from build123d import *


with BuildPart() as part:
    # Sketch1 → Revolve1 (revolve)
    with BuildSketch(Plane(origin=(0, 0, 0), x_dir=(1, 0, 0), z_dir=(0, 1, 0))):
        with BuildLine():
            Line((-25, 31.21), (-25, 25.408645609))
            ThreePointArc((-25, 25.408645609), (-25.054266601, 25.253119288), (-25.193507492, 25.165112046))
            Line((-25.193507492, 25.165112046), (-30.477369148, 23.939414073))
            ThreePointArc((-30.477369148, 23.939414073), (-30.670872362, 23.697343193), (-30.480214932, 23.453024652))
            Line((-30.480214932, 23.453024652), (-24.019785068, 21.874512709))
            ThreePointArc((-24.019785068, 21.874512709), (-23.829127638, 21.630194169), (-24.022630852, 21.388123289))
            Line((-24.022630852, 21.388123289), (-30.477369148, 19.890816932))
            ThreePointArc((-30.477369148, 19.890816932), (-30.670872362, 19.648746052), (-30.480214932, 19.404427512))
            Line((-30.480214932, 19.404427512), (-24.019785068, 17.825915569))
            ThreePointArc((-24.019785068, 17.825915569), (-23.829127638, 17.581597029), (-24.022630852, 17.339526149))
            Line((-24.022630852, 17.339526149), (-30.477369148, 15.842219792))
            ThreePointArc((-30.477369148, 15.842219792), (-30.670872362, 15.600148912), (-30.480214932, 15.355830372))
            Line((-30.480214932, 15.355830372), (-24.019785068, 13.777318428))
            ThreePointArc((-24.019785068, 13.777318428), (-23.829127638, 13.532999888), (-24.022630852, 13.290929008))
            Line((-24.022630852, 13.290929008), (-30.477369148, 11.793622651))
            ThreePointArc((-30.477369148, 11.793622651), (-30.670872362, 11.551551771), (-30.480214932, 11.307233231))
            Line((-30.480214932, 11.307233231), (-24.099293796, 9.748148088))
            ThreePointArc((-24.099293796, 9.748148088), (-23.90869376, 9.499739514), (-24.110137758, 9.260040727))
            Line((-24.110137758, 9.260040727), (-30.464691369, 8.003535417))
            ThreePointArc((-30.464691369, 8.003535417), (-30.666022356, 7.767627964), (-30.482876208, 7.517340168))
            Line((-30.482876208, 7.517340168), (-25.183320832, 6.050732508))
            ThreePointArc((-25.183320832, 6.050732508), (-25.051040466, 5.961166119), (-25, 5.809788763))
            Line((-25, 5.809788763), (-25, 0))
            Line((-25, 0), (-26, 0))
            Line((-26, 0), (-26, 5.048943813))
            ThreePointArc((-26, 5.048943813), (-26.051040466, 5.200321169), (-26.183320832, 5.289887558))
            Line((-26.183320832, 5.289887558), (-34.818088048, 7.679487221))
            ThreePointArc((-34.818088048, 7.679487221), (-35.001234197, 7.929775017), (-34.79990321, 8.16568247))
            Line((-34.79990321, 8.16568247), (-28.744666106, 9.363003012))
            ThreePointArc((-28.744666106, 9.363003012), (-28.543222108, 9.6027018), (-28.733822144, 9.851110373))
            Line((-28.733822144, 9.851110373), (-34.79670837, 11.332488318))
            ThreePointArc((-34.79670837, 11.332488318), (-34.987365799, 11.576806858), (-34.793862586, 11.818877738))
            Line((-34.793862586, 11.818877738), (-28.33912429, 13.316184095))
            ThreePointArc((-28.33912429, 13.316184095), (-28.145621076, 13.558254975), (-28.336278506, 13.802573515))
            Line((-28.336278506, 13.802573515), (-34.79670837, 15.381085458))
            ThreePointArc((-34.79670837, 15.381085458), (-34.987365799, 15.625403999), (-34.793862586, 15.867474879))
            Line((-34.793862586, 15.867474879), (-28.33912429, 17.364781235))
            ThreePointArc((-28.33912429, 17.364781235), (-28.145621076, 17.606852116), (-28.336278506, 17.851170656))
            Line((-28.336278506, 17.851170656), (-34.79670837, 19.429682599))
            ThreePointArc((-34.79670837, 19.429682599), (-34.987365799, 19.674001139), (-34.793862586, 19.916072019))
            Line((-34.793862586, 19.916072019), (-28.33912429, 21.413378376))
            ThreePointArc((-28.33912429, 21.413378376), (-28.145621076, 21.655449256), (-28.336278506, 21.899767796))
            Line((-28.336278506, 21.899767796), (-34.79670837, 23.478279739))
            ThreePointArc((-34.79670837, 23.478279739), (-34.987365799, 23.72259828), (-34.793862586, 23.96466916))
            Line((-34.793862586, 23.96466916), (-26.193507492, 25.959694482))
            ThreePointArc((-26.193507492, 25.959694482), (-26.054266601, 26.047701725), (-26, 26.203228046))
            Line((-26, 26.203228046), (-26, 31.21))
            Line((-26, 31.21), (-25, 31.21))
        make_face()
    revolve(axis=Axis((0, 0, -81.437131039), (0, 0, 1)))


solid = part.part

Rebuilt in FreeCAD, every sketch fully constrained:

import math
import FreeCAD as App
import Part
import Sketcher
Q = App.Units.Quantity

doc = App.newDocument("Part")
body = doc.addObject("PartDesign::Body", "Body")

# Sketch on XZ plane
sketch1 = body.newObject("Sketcher::SketchObject", "Sketch")
sketch1.AttachmentSupport = (doc.getObject("XZ_Plane"), [""])
sketch1.MapMode = "FlatFace"
sketch1.addGeometry([
    Part.LineSegment(App.Vector(-25, -25.41, 0), App.Vector(-25, -31.21, 0)),  # 0
    Part.LineSegment(App.Vector(-25, -31.21, 0), App.Vector(-26, -31.21, 0)),  # 1
    Part.LineSegment(App.Vector(-26, -31.21, 0), App.Vector(-26, -26.2, 0)),  # 2
    Part.ArcOfCircle(Part.Circle(App.Vector(-26.25, -26.2, 0), App.Vector(0, 0, 1), 0.25), math.radians(0), math.radians(77)),  # 3
    Part.LineSegment(App.Vector(-26.19, -25.96, 0), App.Vector(-34.79, -23.96, 0)),  # 4
    Part.ArcOfCircle(Part.Circle(App.Vector(-34.74, -23.72, 0), App.Vector(0, 0, 1), 0.25), math.radians(104), math.radians(257)),  # 5
    Part.LineSegment(App.Vector(-34.8, -23.48, 0), App.Vector(-28.34, -21.9, 0)),  # 6
    Part.ArcOfCircle(Part.Circle(App.Vector(-28.4, -21.66, 0), App.Vector(0, 0, 1), 0.25), math.radians(-76), math.radians(77)),  # 7
    Part.LineSegment(App.Vector(-28.34, -21.41, 0), App.Vector(-34.79, -19.92, 0)),  # 8
    Part.ArcOfCircle(Part.Circle(App.Vector(-34.74, -19.67, 0), App.Vector(0, 0, 1), 0.25), math.radians(104), math.radians(257)),  # 9
    Part.LineSegment(App.Vector(-34.8, -19.43, 0), App.Vector(-28.34, -17.85, 0)),  # 10
    Part.ArcOfCircle(Part.Circle(App.Vector(-28.4, -17.61, 0), App.Vector(0, 0, 1), 0.25), math.radians(-76), math.radians(77)),  # 11
    Part.LineSegment(App.Vector(-28.34, -17.36, 0), App.Vector(-34.79, -15.87, 0)),  # 12
    Part.ArcOfCircle(Part.Circle(App.Vector(-34.74, -15.62, 0), App.Vector(0, 0, 1), 0.25), math.radians(104), math.radians(257)),  # 13
    Part.LineSegment(App.Vector(-34.8, -15.38, 0), App.Vector(-28.34, -13.8, 0)),  # 14
    Part.ArcOfCircle(Part.Circle(App.Vector(-28.4, -13.56, 0), App.Vector(0, 0, 1), 0.25), math.radians(-76), math.radians(77)),  # 15
    Part.LineSegment(App.Vector(-28.34, -13.32, 0), App.Vector(-34.79, -11.82, 0)),  # 16
    Part.ArcOfCircle(Part.Circle(App.Vector(-34.74, -11.58, 0), App.Vector(0, 0, 1), 0.25), math.radians(104), math.radians(257)),  # 17
    Part.LineSegment(App.Vector(-34.8, -11.33, 0), App.Vector(-28.73, -9.85, 0)),  # 18
    Part.ArcOfCircle(Part.Circle(App.Vector(-28.79, -9.61, 0), App.Vector(0, 0, 1), 0.25), math.radians(-76), math.radians(79)),  # 19
    Part.LineSegment(App.Vector(-28.74, -9.36, 0), App.Vector(-34.8, -8.17, 0)),  # 20
    Part.ArcOfCircle(Part.Circle(App.Vector(-34.75, -7.92, 0), App.Vector(0, 0, 1), 0.25), math.radians(105), math.radians(259)),  # 21
    Part.LineSegment(App.Vector(-34.82, -7.68, 0), App.Vector(-26.18, -5.29, 0)),  # 22
    Part.ArcOfCircle(Part.Circle(App.Vector(-26.25, -5.05, 0), App.Vector(0, 0, 1), 0.25), math.radians(-75), math.radians(0)),  # 23
    Part.LineSegment(App.Vector(-26, -5.05, 0), App.Vector(-26, 0, 0)),  # 24
    Part.LineSegment(App.Vector(-26, 0, 0), App.Vector(-25, 0, 0)),  # 25
    Part.LineSegment(App.Vector(-25, 0, 0), App.Vector(-25, -5.81, 0)),  # 26
    Part.ArcOfCircle(Part.Circle(App.Vector(-25.25, -5.81, 0), App.Vector(0, 0, 1), 0.25), math.radians(-75), math.radians(0)),  # 27
    Part.LineSegment(App.Vector(-25.18, -6.05, 0), App.Vector(-30.48, -7.52, 0)),  # 28
    Part.ArcOfCircle(Part.Circle(App.Vector(-30.42, -7.76, 0), App.Vector(0, 0, 1), 0.25), math.radians(105), math.radians(259)),  # 29
    Part.LineSegment(App.Vector(-30.46, -8, 0), App.Vector(-24.11, -9.26, 0)),  # 30
    Part.ArcOfCircle(Part.Circle(App.Vector(-24.16, -9.51, 0), App.Vector(0, 0, 1), 0.25), math.radians(-76), math.radians(79)),  # 31
    Part.LineSegment(App.Vector(-24.1, -9.75, 0), App.Vector(-30.48, -11.31, 0)),  # 32
    Part.ArcOfCircle(Part.Circle(App.Vector(-30.42, -11.55, 0), App.Vector(0, 0, 1), 0.25), math.radians(104), math.radians(257)),  # 33
    Part.LineSegment(App.Vector(-30.48, -11.79, 0), App.Vector(-24.02, -13.29, 0)),  # 34
    Part.ArcOfCircle(Part.Circle(App.Vector(-24.08, -13.53, 0), App.Vector(0, 0, 1), 0.25), math.radians(-76), math.radians(77)),  # 35
    Part.LineSegment(App.Vector(-24.02, -13.78, 0), App.Vector(-30.48, -15.36, 0)),  # 36
    Part.ArcOfCircle(Part.Circle(App.Vector(-30.42, -15.6, 0), App.Vector(0, 0, 1), 0.25), math.radians(104), math.radians(257)),  # 37
    Part.LineSegment(App.Vector(-30.48, -15.84, 0), App.Vector(-24.02, -17.34, 0)),  # 38
    Part.ArcOfCircle(Part.Circle(App.Vector(-24.08, -17.58, 0), App.Vector(0, 0, 1), 0.25), math.radians(-76), math.radians(77)),  # 39
    Part.LineSegment(App.Vector(-24.02, -17.83, 0), App.Vector(-30.48, -19.4, 0)),  # 40
    Part.ArcOfCircle(Part.Circle(App.Vector(-30.42, -19.65, 0), App.Vector(0, 0, 1), 0.25), math.radians(104), math.radians(257)),  # 41
    Part.LineSegment(App.Vector(-30.48, -19.89, 0), App.Vector(-24.02, -21.39, 0)),  # 42
    Part.ArcOfCircle(Part.Circle(App.Vector(-24.08, -21.63, 0), App.Vector(0, 0, 1), 0.25), math.radians(-76), math.radians(77)),  # 43
    Part.LineSegment(App.Vector(-24.02, -21.87, 0), App.Vector(-30.48, -23.45, 0)),  # 44
    Part.ArcOfCircle(Part.Circle(App.Vector(-30.42, -23.7, 0), App.Vector(0, 0, 1), 0.25), math.radians(104), math.radians(257)),  # 45
    Part.LineSegment(App.Vector(-30.48, -23.94, 0), App.Vector(-25.19, -25.17, 0)),  # 46
    Part.ArcOfCircle(Part.Circle(App.Vector(-25.25, -25.41, 0), App.Vector(0, 0, 1), 0.25), math.radians(0), math.radians(77)),  # 47
], False)
sketch1.addConstraint([
    Sketcher.Constraint("Coincident", 0, 2, 1, 1),
    Sketcher.Constraint("Coincident", 1, 2, 2, 1),
    Sketcher.Constraint("Tangent", 2, 2, 3, 1),
    Sketcher.Constraint("Tangent", 3, 2, 4, 1),
    Sketcher.Constraint("Tangent", 4, 2, 5, 2),
    Sketcher.Constraint("Tangent", 5, 1, 6, 1),
    Sketcher.Constraint("Tangent", 6, 2, 7, 1),
    Sketcher.Constraint("Tangent", 7, 2, 8, 1),
    Sketcher.Constraint("Tangent", 8, 2, 9, 2),
    Sketcher.Constraint("Tangent", 9, 1, 10, 1),
    Sketcher.Constraint("Tangent", 10, 2, 11, 1),
    Sketcher.Constraint("Tangent", 11, 2, 12, 1),
    Sketcher.Constraint("Tangent", 12, 2, 13, 2),
    Sketcher.Constraint("Tangent", 13, 1, 14, 1),
    Sketcher.Constraint("Tangent", 14, 2, 15, 1),
    Sketcher.Constraint("Tangent", 15, 2, 16, 1),
    Sketcher.Constraint("Tangent", 16, 2, 17, 2),
    Sketcher.Constraint("Tangent", 17, 1, 18, 1),
    Sketcher.Constraint("Tangent", 18, 2, 19, 1),
    Sketcher.Constraint("Tangent", 19, 2, 20, 1),
    Sketcher.Constraint("Tangent", 20, 2, 21, 2),
    Sketcher.Constraint("Tangent", 21, 1, 22, 1),
    Sketcher.Constraint("Tangent", 22, 2, 23, 1),
    Sketcher.Constraint("Tangent", 23, 2, 24, 1),
    Sketcher.Constraint("Coincident", 24, 2, 25, 1),
    Sketcher.Constraint("Coincident", 25, 2, 26, 1),
    Sketcher.Constraint("Tangent", 26, 2, 27, 2),
    Sketcher.Constraint("Tangent", 27, 1, 28, 1),
    Sketcher.Constraint("Tangent", 28, 2, 29, 1),
    Sketcher.Constraint("Tangent", 29, 2, 30, 1),
    Sketcher.Constraint("Tangent", 30, 2, 31, 2),
    Sketcher.Constraint("Tangent", 31, 1, 32, 1),
    Sketcher.Constraint("Tangent", 32, 2, 33, 1),
    Sketcher.Constraint("Tangent", 33, 2, 34, 1),
    Sketcher.Constraint("Tangent", 34, 2, 35, 2),
    Sketcher.Constraint("Tangent", 35, 1, 36, 1),
    Sketcher.Constraint("Tangent", 36, 2, 37, 1),
    Sketcher.Constraint("Tangent", 37, 2, 38, 1),
    Sketcher.Constraint("Tangent", 38, 2, 39, 2),
    Sketcher.Constraint("Tangent", 39, 1, 40, 1),
    Sketcher.Constraint("Tangent", 40, 2, 41, 1),
    Sketcher.Constraint("Tangent", 41, 2, 42, 1),
    Sketcher.Constraint("Tangent", 42, 2, 43, 2),
    Sketcher.Constraint("Tangent", 43, 1, 44, 1),
    Sketcher.Constraint("Tangent", 44, 2, 45, 1),
    Sketcher.Constraint("Tangent", 45, 2, 46, 1),
    Sketcher.Constraint("Tangent", 46, 2, 47, 2),
    Sketcher.Constraint("Tangent", 47, 1, 0, 1),
    Sketcher.Constraint("Vertical", 0),
    Sketcher.Constraint("Horizontal", 1),
    Sketcher.Constraint("Vertical", 2),
    Sketcher.Constraint("Vertical", 24),
    Sketcher.Constraint("Horizontal", 25),
    Sketcher.Constraint("Vertical", 26),
    Sketcher.Constraint("Equal", 3, 5),
    Sketcher.Constraint("Equal", 5, 7),
    Sketcher.Constraint("Equal", 7, 9),
    Sketcher.Constraint("Equal", 9, 11),
    Sketcher.Constraint("Equal", 11, 13),
    Sketcher.Constraint("Equal", 13, 15),
    Sketcher.Constraint("Equal", 15, 17),
    Sketcher.Constraint("Equal", 17, 19),
    Sketcher.Constraint("Equal", 19, 21),
    Sketcher.Constraint("Equal", 21, 23),
    Sketcher.Constraint("Equal", 23, 27),
    Sketcher.Constraint("Equal", 27, 29),
    Sketcher.Constraint("Equal", 29, 31),
    Sketcher.Constraint("Equal", 31, 33),
    Sketcher.Constraint("Equal", 33, 35),
    Sketcher.Constraint("Equal", 35, 37),
    Sketcher.Constraint("Equal", 37, 39),
    Sketcher.Constraint("Equal", 39, 41),
    Sketcher.Constraint("Equal", 41, 43),
    Sketcher.Constraint("Equal", 43, 45),
    Sketcher.Constraint("Equal", 45, 47),
    Sketcher.Constraint("PointOnObject", 24, 2, -1),
    Sketcher.Constraint("Parallel", 4, 8),
    Sketcher.Constraint("Parallel", 6, 10),
    Sketcher.Constraint("Parallel", 8, 12),
    Sketcher.Constraint("Parallel", 10, 14),
    Sketcher.Constraint("Parallel", 12, 16),
    Sketcher.Constraint("Parallel", 14, 18),
    Sketcher.Constraint("Parallel", 22, 28),
    Sketcher.Constraint("Parallel", 20, 30),
    Sketcher.Constraint("Parallel", 18, 32),
    Sketcher.Constraint("Parallel", 16, 34),
    Sketcher.Constraint("Parallel", 32, 36),
    Sketcher.Constraint("Parallel", 34, 38),
    Sketcher.Constraint("Parallel", 36, 40),
    Sketcher.Constraint("Parallel", 38, 42),
    Sketcher.Constraint("Parallel", 40, 44),
    Sketcher.Constraint("Parallel", 42, 46),
    Sketcher.Constraint("Vertical", 5, 3, 9, 3),
    Sketcher.Constraint("Vertical", 7, 3, 11, 3),
    Sketcher.Constraint("Vertical", 9, 3, 13, 3),
    Sketcher.Constraint("Vertical", 11, 3, 15, 3),
    Sketcher.Constraint("Vertical", 13, 3, 17, 3),
    Sketcher.Constraint("Vertical", 3, 3, 23, 3),
    Sketcher.Constraint("Vertical", 33, 3, 37, 3),
    Sketcher.Constraint("Vertical", 35, 3, 39, 3),
    Sketcher.Constraint("Vertical", 37, 3, 41, 3),
    Sketcher.Constraint("Vertical", 39, 3, 43, 3),
    Sketcher.Constraint("Vertical", 41, 3, 45, 3),
    Sketcher.Constraint("Vertical", 27, 3, 47, 3),
    Sketcher.Constraint("Equal", 16, 34),
    Sketcher.Constraint("DistanceX", 1, 2, 1, 1, Q("1 mm")),
    Sketcher.Constraint("Radius", 3, Q("0.25 mm")),
    Sketcher.Constraint("DistanceX", 0, 2, -1, 1, Q("25 mm")),
    Sketcher.Constraint("DistanceY", 0, 2, -1, 1, Q("31.21 mm")),
    Sketcher.Constraint("DistanceY", 2, 1, 2, 2, Q("5.006772 mm")),
    Sketcher.Constraint("DistanceY", 26, 2, 26, 1, Q("5.809789 mm")),
    Sketcher.Constraint("Distance", 8, Q("6.626128 mm")),
    Sketcher.Constraint("Distance", 18, Q("6.241239 mm")),
    Sketcher.Constraint("Distance", 22, Q("8.959319 mm")),
    Sketcher.Constraint("Distance", 30, Q("6.477589 mm")),
    Sketcher.Constraint("Distance", 32, Q("6.56863 mm")),
    Sketcher.Constraint("Distance", 46, Q("5.424162 mm")),
    Sketcher.Constraint("DistanceY", 0, 2, 0, 1, Q("5.801354 mm")),
    Sketcher.Constraint("DistanceY", 24, 1, 24, 2, Q("5.048944 mm")),
    Sketcher.Constraint("DistanceX", 5, 3, -1, 1, Q("34.73737 mm")),
    Sketcher.Constraint("DistanceY", 7, 3, -1, 1, Q("21.656912 mm")),
    Sketcher.Constraint("DistanceY", 9, 3, -1, 1, Q("19.672538 mm")),
])
revolution = body.newObject("PartDesign::Revolution", "Revolution")
revolution.Profile = sketch1
revolution.ReferenceAxis = (sketch1, ["V_Axis"])
revolution.Angle = 360

doc.recompute()
